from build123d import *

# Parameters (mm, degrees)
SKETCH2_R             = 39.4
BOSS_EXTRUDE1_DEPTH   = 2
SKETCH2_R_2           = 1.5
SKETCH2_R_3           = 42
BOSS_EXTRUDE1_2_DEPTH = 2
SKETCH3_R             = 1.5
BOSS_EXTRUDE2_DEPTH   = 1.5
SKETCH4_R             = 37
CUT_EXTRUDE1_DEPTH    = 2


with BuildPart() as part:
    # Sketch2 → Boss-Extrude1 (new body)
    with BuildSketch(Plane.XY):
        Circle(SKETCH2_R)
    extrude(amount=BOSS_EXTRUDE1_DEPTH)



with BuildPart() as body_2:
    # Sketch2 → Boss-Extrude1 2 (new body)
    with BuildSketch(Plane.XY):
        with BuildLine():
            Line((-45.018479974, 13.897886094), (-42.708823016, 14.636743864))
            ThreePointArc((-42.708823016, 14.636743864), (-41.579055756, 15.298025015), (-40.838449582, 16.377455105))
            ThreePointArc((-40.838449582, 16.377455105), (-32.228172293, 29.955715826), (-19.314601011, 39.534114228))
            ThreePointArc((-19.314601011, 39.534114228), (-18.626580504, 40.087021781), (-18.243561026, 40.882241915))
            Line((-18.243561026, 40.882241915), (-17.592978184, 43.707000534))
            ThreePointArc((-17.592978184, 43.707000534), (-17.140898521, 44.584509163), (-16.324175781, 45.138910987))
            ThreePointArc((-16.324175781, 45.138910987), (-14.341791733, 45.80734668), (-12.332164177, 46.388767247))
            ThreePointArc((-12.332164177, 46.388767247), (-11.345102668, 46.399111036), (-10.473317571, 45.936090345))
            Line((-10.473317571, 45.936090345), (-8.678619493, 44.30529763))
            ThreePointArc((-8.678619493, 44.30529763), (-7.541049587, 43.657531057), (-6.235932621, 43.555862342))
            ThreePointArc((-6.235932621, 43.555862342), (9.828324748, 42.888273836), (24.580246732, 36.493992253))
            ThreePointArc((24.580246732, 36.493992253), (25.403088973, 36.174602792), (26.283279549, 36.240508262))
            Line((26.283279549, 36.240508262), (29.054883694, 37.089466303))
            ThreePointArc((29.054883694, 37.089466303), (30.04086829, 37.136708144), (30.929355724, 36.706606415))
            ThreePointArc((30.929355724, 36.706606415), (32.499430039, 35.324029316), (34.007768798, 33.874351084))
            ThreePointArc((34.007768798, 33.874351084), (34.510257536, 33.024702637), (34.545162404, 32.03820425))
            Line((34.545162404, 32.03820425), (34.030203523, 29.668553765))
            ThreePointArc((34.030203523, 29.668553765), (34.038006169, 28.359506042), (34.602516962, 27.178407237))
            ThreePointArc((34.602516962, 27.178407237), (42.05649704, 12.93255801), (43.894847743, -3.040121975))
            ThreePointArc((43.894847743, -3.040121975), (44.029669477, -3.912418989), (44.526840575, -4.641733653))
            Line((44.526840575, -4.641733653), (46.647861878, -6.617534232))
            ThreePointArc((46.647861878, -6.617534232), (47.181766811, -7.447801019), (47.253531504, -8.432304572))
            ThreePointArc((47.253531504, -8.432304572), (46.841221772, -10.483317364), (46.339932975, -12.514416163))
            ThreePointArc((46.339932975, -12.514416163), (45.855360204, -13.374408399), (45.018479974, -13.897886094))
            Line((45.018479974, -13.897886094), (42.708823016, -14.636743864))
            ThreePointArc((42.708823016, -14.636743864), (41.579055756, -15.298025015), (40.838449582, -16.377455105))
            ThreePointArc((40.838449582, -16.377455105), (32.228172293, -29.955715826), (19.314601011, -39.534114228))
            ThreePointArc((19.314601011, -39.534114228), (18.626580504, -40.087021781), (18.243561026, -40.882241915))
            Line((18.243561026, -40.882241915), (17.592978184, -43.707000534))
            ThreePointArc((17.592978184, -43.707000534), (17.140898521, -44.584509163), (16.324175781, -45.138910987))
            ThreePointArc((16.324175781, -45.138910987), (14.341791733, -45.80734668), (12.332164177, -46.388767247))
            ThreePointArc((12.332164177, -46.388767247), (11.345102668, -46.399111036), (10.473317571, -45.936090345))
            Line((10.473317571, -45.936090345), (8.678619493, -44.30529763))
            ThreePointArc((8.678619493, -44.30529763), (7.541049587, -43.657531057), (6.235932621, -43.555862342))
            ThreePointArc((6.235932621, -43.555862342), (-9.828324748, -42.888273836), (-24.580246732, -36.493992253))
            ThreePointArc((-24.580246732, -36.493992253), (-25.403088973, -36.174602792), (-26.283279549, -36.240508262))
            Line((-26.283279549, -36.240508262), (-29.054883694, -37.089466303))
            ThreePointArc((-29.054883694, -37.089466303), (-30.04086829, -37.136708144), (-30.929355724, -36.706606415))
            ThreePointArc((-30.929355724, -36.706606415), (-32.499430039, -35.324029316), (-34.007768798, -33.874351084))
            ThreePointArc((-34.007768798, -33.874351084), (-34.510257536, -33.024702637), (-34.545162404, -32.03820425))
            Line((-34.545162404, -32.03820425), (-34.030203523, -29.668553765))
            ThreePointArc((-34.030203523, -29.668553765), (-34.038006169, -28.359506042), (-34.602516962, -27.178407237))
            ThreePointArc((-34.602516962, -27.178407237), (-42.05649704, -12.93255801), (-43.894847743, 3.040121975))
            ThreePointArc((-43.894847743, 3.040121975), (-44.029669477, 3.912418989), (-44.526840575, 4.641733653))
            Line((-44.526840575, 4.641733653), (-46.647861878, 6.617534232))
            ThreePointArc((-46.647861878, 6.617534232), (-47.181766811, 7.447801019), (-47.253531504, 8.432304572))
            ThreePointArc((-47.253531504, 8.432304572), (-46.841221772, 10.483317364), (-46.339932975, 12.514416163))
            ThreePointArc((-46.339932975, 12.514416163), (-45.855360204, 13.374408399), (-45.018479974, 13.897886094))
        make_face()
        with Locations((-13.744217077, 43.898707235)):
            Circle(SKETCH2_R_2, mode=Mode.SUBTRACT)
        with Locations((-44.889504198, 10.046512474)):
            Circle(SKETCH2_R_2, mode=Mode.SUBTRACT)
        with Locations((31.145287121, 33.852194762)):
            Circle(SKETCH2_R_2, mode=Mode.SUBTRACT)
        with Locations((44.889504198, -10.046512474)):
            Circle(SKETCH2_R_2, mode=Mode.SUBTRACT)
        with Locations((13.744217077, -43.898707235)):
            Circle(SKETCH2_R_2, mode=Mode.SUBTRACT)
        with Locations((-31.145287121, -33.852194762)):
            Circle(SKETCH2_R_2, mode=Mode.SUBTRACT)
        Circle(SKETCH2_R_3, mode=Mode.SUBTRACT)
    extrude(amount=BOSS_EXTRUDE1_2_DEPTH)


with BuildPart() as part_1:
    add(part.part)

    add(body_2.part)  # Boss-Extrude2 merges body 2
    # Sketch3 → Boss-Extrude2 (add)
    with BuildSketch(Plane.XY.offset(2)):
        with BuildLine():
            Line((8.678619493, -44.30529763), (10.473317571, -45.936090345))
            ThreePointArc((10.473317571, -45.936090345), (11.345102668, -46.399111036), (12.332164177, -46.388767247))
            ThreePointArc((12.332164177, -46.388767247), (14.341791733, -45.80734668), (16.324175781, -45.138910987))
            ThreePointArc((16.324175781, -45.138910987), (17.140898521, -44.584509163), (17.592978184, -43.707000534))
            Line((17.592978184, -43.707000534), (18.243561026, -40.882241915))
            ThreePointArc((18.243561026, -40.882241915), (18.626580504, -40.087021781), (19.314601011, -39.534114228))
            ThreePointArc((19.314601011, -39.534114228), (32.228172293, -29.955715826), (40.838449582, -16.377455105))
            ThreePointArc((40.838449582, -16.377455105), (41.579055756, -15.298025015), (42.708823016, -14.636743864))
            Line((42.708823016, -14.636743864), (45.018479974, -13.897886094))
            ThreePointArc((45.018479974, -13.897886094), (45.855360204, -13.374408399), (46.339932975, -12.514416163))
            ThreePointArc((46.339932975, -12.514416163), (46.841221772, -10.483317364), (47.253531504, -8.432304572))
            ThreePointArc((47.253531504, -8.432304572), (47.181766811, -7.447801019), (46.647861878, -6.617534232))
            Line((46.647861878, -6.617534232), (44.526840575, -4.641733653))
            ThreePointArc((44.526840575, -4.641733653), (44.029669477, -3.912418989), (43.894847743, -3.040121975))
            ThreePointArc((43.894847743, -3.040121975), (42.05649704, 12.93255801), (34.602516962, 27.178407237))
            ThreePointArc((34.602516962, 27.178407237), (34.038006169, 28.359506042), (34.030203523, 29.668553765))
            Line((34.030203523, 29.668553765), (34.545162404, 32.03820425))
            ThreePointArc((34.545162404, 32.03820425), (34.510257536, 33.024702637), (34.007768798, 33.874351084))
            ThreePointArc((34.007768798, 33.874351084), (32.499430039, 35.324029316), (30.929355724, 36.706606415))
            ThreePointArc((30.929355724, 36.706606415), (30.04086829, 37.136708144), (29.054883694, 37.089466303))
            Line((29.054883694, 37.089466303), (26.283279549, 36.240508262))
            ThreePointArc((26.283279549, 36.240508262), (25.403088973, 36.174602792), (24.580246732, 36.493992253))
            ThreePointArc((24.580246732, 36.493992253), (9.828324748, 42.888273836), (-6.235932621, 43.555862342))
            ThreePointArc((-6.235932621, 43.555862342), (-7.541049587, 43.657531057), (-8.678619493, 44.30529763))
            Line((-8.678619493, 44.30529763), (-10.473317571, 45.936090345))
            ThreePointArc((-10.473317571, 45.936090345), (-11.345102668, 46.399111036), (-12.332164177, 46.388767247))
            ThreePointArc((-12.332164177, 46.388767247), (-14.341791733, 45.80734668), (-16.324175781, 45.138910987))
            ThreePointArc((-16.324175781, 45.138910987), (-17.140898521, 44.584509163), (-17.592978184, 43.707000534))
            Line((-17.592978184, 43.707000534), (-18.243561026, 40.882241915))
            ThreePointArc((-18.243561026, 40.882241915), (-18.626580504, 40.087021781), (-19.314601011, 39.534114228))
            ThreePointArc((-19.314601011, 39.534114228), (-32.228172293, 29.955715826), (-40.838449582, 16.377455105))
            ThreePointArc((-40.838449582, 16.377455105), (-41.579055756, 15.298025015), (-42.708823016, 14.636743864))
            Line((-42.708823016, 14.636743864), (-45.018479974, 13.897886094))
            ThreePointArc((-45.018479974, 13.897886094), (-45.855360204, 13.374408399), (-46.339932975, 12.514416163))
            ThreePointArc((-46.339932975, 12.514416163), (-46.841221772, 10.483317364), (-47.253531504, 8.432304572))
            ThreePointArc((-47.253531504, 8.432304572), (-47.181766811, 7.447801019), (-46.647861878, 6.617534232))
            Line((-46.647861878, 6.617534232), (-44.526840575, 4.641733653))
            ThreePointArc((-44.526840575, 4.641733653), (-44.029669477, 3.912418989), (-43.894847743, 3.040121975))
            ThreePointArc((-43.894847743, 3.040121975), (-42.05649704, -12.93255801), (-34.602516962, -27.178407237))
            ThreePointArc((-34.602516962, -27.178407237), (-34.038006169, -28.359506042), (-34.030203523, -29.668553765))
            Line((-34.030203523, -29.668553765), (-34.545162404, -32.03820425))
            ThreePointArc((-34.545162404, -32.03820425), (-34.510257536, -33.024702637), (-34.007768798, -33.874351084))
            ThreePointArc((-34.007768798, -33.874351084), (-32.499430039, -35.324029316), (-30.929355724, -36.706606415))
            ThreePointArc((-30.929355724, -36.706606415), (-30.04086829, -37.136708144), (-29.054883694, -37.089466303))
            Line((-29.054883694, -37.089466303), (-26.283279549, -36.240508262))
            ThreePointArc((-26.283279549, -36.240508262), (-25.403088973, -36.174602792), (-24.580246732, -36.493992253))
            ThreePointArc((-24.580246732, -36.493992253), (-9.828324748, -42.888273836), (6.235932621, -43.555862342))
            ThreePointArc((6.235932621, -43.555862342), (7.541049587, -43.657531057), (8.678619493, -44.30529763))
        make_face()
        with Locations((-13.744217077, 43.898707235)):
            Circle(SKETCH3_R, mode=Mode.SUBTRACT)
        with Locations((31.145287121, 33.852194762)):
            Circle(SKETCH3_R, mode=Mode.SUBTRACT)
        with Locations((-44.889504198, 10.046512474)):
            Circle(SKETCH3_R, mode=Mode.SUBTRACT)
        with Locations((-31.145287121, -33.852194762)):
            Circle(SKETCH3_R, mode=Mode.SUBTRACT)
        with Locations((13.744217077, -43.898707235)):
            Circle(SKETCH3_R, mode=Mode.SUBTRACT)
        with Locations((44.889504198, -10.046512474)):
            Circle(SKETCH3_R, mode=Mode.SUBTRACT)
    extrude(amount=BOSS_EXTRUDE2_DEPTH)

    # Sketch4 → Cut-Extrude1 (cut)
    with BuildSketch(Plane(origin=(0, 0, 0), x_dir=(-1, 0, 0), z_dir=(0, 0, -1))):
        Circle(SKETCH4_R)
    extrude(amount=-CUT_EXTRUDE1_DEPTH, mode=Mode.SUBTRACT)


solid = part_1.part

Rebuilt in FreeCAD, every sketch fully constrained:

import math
import FreeCAD as App
import Part
import Sketcher

V = App.Vector
Q = App.Units.Quantity

doc = App.newDocument("Part")
body = doc.addObject("PartDesign::Body", "Body")

# Sketch on XY plane
sketch1 = body.newObject("Sketcher::SketchObject", "Sketch")
sketch1.AttachmentSupport = (doc.getObject("XY_Plane"), [""])
sketch1.MapMode = "FlatFace"
sketch1.addGeometry(Part.Circle(V(0, 0, 0), V(0, 0, 1), 39), False)
sketch1.addConstraint([
    Sketcher.Constraint("Coincident", 0, 3, -1, 1),
    Sketcher.Constraint("Diameter", 0, Q("78.8 mm")),
])
pad1 = body.newObject("PartDesign::Pad", "Pad")
pad1.Profile = sketch1
pad1.Length = 2
body2 = doc.addObject("PartDesign::Body", "Body001")

# Sketch on XY plane
sketch2 = body2.newObject("Sketcher::SketchObject", "Sketch001")
sketch2.AttachmentSupport = (doc.getObject("XY_Plane001"), [""])
sketch2.MapMode = "FlatFace"
sketch2.addGeometry([
    Part.LineSegment(V(-42.7, 14.6, 0), V(-45, 13.9, 0)),  # 0
    Part.ArcOfCircle(Part.Circle(V(-44.4, 12, 0), V(0, 0, 1), 2), math.radians(108), math.radians(165)),  # 1
    Part.ArcOfCircle(Part.Circle(V(0, 0, 0), V(0, 0, 1), 48), math.radians(164.89), math.radians(169.88)),  # 2
    Part.ArcOfCircle(Part.Circle(V(-45.3, 8.1, 0), V(0, 0, 1), 2), math.radians(170), math.radians(227)),  # 3
    Part.LineSegment(V(-46.6, 6.6, 0), V(-44.5, 4.6, 0)),  # 4
    Part.ArcOfCircle(Part.Circle(V(-45.9, 3.2, 0), V(0, 0, 1), 2), math.radians(-4), math.radians(47)),  # 5
    Part.ArcOfCircle(Part.Circle(V(0, 0, 0), V(0, 0, 1), 44), math.radians(176), math.radians(218)),  # 6
    Part.ArcOfCircle(Part.Circle(V(-37, -29, 0), V(0, 0, 1), 3), math.radians(-12), math.radians(38)),  # 7
    Part.LineSegment(V(-34, -29.7, 0), V(-34.5, -32, 0)),  # 8
    Part.ArcOfCircle(Part.Circle(V(-32.6, -32.5, 0), V(0, 0, 1), 2), math.radians(168), math.radians(225)),  # 9
    Part.ArcOfCircle(Part.Circle(V(0, 0, 0), V(0, 0, 1), 48), math.radians(-135.11), math.radians(-130.12)),  # 10
    Part.ArcOfCircle(Part.Circle(V(-29.6, -35.2, 0), V(0, 0, 1), 2), math.radians(-130), math.radians(-73)),  # 11
    Part.LineSegment(V(-29.1, -37.1, 0), V(-26.3, -36.2, 0)),  # 12
    Part.ArcOfCircle(Part.Circle(V(-25.7, -38.2, 0), V(0, 0, 1), 2), math.radians(56), math.radians(107)),  # 13
    Part.ArcOfCircle(Part.Circle(V(0, 0, 0), V(0, 0, 1), 44), math.radians(-124), math.radians(-82)),  # 14
    Part.ArcOfCircle(Part.Circle(V(6.7, -46.5, 0), V(0, 0, 1), 3), math.radians(48), math.radians(98)),  # 15
    Part.LineSegment(V(8.7, -44.3, 0), V(10.5, -45.9, 0)),  # 16
    Part.ArcOfCircle(Part.Circle(V(11.8, -44.5, 0), V(0, 0, 1), 2), math.radians(-132), math.radians(-75)),  # 17
    Part.ArcOfCircle(Part.Circle(V(0, 0, 0), V(0, 0, 1), 48), math.radians(-75.11), math.radians(-70.12)),  # 18
    Part.ArcOfCircle(Part.Circle(V(15.6, -43.3, 0), V(0, 0, 1), 2), math.radians(-70), math.radians(-13)),  # 19
    Part.LineSegment(V(17.6, -43.7, 0), V(18.2, -40.9, 0)),  # 20
    Part.ArcOfCircle(Part.Circle(V(20.2, -41.3, 0), V(0, 0, 1), 2), math.radians(116), math.radians(167)),  # 21
    Part.ArcOfCircle(Part.Circle(V(0, 0, 0), V(0, 0, 1), 44), math.radians(-64), math.radians(-22)),  # 22
    Part.ArcOfCircle(Part.Circle(V(43.6, -17.5, 0), V(0, 0, 1), 3), math.radians(108), math.radians(158)),  # 23
    Part.LineSegment(V(42.7, -14.6, 0), V(45, -13.9, 0)),  # 24
    Part.ArcOfCircle(Part.Circle(V(44.4, -12, 0), V(0, 0, 1), 2), math.radians(-72), math.radians(-15)),  # 25
    Part.ArcOfCircle(Part.Circle(V(0, 0, 0), V(0, 0, 1), 48), math.radians(-15.11), math.radians(-10.12)),  # 26
    Part.ArcOfCircle(Part.Circle(V(45.3, -8.1, 0), V(0, 0, 1), 2), math.radians(-10), math.radians(47)),  # 27
    Part.LineSegment(V(46.6, -6.6, 0), V(44.5, -4.6, 0)),  # 28
    Part.ArcOfCircle(Part.Circle(V(45.9, -3.2, 0), V(0, 0, 1), 2), math.radians(176), math.radians(227)),  # 29
    Part.ArcOfCircle(Part.Circle(V(0, 0, 0), V(0, 0, 1), 44), math.radians(-4), math.radians(38)),  # 30
    Part.ArcOfCircle(Part.Circle(V(37, 29, 0), V(0, 0, 1), 3), math.radians(168), math.radians(218)),  # 31
    Part.LineSegment(V(34, 29.7, 0), V(34.5, 32, 0)),  # 32
    Part.ArcOfCircle(Part.Circle(V(32.6, 32.5, 0), V(0, 0, 1), 2), math.radians(-12), math.radians(45)),  # 33
    Part.ArcOfCircle(Part.Circle(V(0, 0, 0), V(0, 0, 1), 48), math.radians(44.89), math.radians(49.88)),  # 34
    Part.ArcOfCircle(Part.Circle(V(29.6, 35.2, 0), V(0, 0, 1), 2), math.radians(50), math.radians(107)),  # 35
    Part.LineSegment(V(29.1, 37.1, 0), V(26.3, 36.2, 0)),  # 36
    Part.ArcOfCircle(Part.Circle(V(25.7, 38.2, 0), V(0, 0, 1), 2), math.radians(-124), math.radians(-73)),  # 37
    Part.ArcOfCircle(Part.Circle(V(0, 0, 0), V(0, 0, 1), 44), math.radians(56), math.radians(98)),  # 38
    Part.ArcOfCircle(Part.Circle(V(-6.7, 46.5, 0), V(0, 0, 1), 3), math.radians(-132), math.radians(-82)),  # 39
    Part.LineSegment(V(-8.7, 44.3, 0), V(-10.5, 45.9, 0)),  # 40
    Part.ArcOfCircle(Part.Circle(V(-11.8, 44.5, 0), V(0, 0, 1), 2), math.radians(48), math.radians(105)),  # 41
    Part.ArcOfCircle(Part.Circle(V(0, 0, 0), V(0, 0, 1), 48), math.radians(104.89), math.radians(109.88)),  # 42
    Part.ArcOfCircle(Part.Circle(V(-15.6, 43.3, 0), V(0, 0, 1), 2), math.radians(110), math.radians(167)),  # 43
    Part.LineSegment(V(-17.6, 43.7, 0), V(-18.2, 40.9, 0)),  # 44
    Part.ArcOfCircle(Part.Circle(V(-20.2, 41.3, 0), V(0, 0, 1), 2), math.radians(-64), math.radians(-13)),  # 45
    Part.ArcOfCircle(Part.Circle(V(0, 0, 0), V(0, 0, 1), 44), math.radians(116), math.radians(158)),  # 46
    Part.ArcOfCircle(Part.Circle(V(-43.6, 17.5, 0), V(0, 0, 1), 3), math.radians(-72), math.radians(-22)),  # 47
    Part.Circle(V(13.7, -43.9, 0), V(0, 0, 1), 1.5),  # 48
    Part.Circle(V(44.9, -10, 0), V(0, 0, 1), 1.5),  # 49
    Part.Circle(V(-31.1, -33.9, 0), V(0, 0, 1), 1.5),  # 50
    Part.Circle(V(0, 0, 0), V(0, 0, 1), 42),  # 51
    Part.Circle(V(31.1, 33.9, 0), V(0, 0, 1), 1.5),  # 52
    Part.Circle(V(-44.9, 10, 0), V(0, 0, 1), 1.5),  # 53
    Part.Circle(V(-13.7, 43.9, 0), V(0, 0, 1), 1.5),  # 54
], False)
sketch2.addConstraint([
    Sketcher.Constraint("Tangent", 0, 2, 1, 1),
    Sketcher.Constraint("Tangent", 1, 2, 2, 1),
    Sketcher.Constraint("Tangent", 2, 2, 3, 1),
    Sketcher.Constraint("Tangent", 3, 2, 4, 1),
    Sketcher.Constraint("Tangent", 4, 2, 5, 2),
    Sketcher.Constraint("Tangent", 5, 1, 6, 1),
    Sketcher.Constraint("Tangent", 6, 2, 7, 2),
    Sketcher.Constraint("Tangent", 7, 1, 8, 1),
    Sketcher.Constraint("Tangent", 8, 2, 9, 1),
    Sketcher.Constraint("Tangent", 9, 2, 10, 1),
    Sketcher.Constraint("Tangent", 10, 2, 11, 1),
    Sketcher.Constraint("Tangent", 11, 2, 12, 1),
    Sketcher.Constraint("Tangent", 12, 2, 13, 2),
    Sketcher.Constraint("Tangent", 13, 1, 14, 1),
    Sketcher.Constraint("Tangent", 14, 2, 15, 2),
    Sketcher.Constraint("Tangent", 15, 1, 16, 1),
    Sketcher.Constraint("Tangent", 16, 2, 17, 1),
    Sketcher.Constraint("Tangent", 17, 2, 18, 1),
    Sketcher.Constraint("Tangent", 18, 2, 19, 1),
    Sketcher.Constraint("Tangent", 19, 2, 20, 1),
    Sketcher.Constraint("Tangent", 20, 2, 21, 2),
    Sketcher.Constraint("Tangent", 21, 1, 22, 1),
    Sketcher.Constraint("Tangent", 22, 2, 23, 2),
    Sketcher.Constraint("Tangent", 23, 1, 24, 1),
    Sketcher.Constraint("Tangent", 24, 2, 25, 1),
    Sketcher.Constraint("Tangent", 25, 2, 26, 1),
    Sketcher.Constraint("Tangent", 26, 2, 27, 1),
    Sketcher.Constraint("Tangent", 27, 2, 28, 1),
    Sketcher.Constraint("Tangent", 28, 2, 29, 2),
    Sketcher.Constraint("Tangent", 29, 1, 30, 1),
    Sketcher.Constraint("Tangent", 30, 2, 31, 2),
    Sketcher.Constraint("Tangent", 31, 1, 32, 1),
    Sketcher.Constraint("Tangent", 32, 2, 33, 1),
    Sketcher.Constraint("Tangent", 33, 2, 34, 1),
    Sketcher.Constraint("Tangent", 34, 2, 35, 1),
    Sketcher.Constraint("Tangent", 35, 2, 36, 1),
    Sketcher.Constraint("Tangent", 36, 2, 37, 2),
    Sketcher.Constraint("Tangent", 37, 1, 38, 1),
    Sketcher.Constraint("Tangent", 38, 2, 39, 2),
    Sketcher.Constraint("Tangent", 39, 1, 40, 1),
    Sketcher.Constraint("Tangent", 40, 2, 41, 1),
    Sketcher.Constraint("Tangent", 41, 2, 42, 1),
    Sketcher.Constraint("Tangent", 42, 2, 43, 1),
    Sketcher.Constraint("Tangent", 43, 2, 44, 1),
    Sketcher.Constraint("Tangent", 44, 2, 45, 2),
    Sketcher.Constraint("Tangent", 45, 1, 46, 1),
    Sketcher.Constraint("Tangent", 46, 2, 47, 2),
    Sketcher.Constraint("Tangent", 47, 1, 0, 1),
    Sketcher.Constraint("Coincident", 2, 3, -1, 1),
    Sketcher.Constraint("Coincident", 6, 3, -1, 1),
    Sketcher.Constraint("Coincident", 10, 3, -1, 1),
    Sketcher.Constraint("Coincident", 14, 3, -1, 1),
    Sketcher.Constraint("Coincident", 18, 3, -1, 1),
    Sketcher.Constraint("Coincident", 22, 3, -1, 1),
    Sketcher.Constraint("Coincident", 26, 3, -1, 1),
    Sketcher.Constraint("Coincident", 30, 3, -1, 1),
    Sketcher.Constraint("Coincident", 34, 3, -1, 1),
    Sketcher.Constraint("Coincident", 38, 3, -1, 1),
    Sketcher.Constraint("Coincident", 42, 3, -1, 1),
    Sketcher.Constraint("Coincident", 46, 3, -1, 1),
    Sketcher.Constraint("Coincident", 51, 3, -1, 1),
    Sketcher.Constraint("Equal", 1, 3),
    Sketcher.Constraint("Equal", 3, 5),
    Sketcher.Constraint("Equal", 5, 9),
    Sketcher.Constraint("Equal", 2, 10),
    Sketcher.Constraint("Equal", 9, 11),
    Sketcher.Constraint("Equal", 11, 13),
    Sketcher.Constraint("Equal", 6, 14),
    Sketcher.Constraint("Equal", 7, 15),
    Sketcher.Constraint("Equal", 13, 17),
    Sketcher.Constraint("Equal", 10, 18),
    Sketcher.Constraint("Equal", 17, 19),
    Sketcher.Constraint("Equal", 19, 21),
    Sketcher.Constraint("Equal", 14, 22),
    Sketcher.Constraint("Equal", 15, 23),
    Sketcher.Constraint("Equal", 21, 25),
    Sketcher.Constraint("Equal", 18, 26),
    Sketcher.Constraint("Equal", 25, 27),
    Sketcher.Constraint("Equal", 27, 29),
    Sketcher.Constraint("Equal", 22, 30),
    Sketcher.Constraint("Equal", 23, 31),
    Sketcher.Constraint("Equal", 29, 33),
    Sketcher.Constraint("Equal", 26, 34),
    Sketcher.Constraint("Equal", 33, 35),
    Sketcher.Constraint("Equal", 35, 37),
    Sketcher.Constraint("Equal", 30, 38),
    Sketcher.Constraint("Equal", 31, 39),
    Sketcher.Constraint("Equal", 37, 41),
    Sketcher.Constraint("Equal", 34, 42),
    Sketcher.Constraint("Equal", 41, 43),
    Sketcher.Constraint("Equal", 43, 45),
    Sketcher.Constraint("Equal", 38, 46),
    Sketcher.Constraint("Equal", 39, 47),
    Sketcher.Constraint("Equal", 48, 49),
    Sketcher.Constraint("Equal", 49, 50),
    Sketcher.Constraint("Equal", 50, 52),
    Sketcher.Constraint("Equal", 52, 53),
    Sketcher.Constraint("Equal", 53, 54),
    Sketcher.Constraint("Symmetric", 50, 3, 52, 3, -1, 1),
    Sketcher.Constraint("Symmetric", 49, 3, 53, 3, -1, 1),
    Sketcher.Constraint("Symmetric", 48, 3, 54, 3, -1, 1),
    Sketcher.Constraint("Symmetric", 0, 2, 24, 2, -1, 1),
    Sketcher.Constraint("Symmetric", 3, 2, 27, 2, -1, 1),
    Sketcher.Constraint("Symmetric", 7, 1, 31, 1, -1, 1),
    Sketcher.Constraint("Symmetric", 11, 2, 35, 2, -1, 1),
    Sketcher.Constraint("Symmetric", 15, 1, 39, 1, -1, 1),
    Sketcher.Constraint("Symmetric", 19, 2, 43, 2, -1, 1),
    Sketcher.Constraint("Equal", 0, 8),
    Sketcher.Constraint("Equal", 4, 12),
    Sketcher.Constraint("Equal", 8, 16),
    Sketcher.Constraint("Equal", 12, 20),
    Sketcher.Constraint("Diameter", 48, Q("3 mm")),
    Sketcher.Constraint("Diameter", 51, Q("84 mm")),
    Sketcher.Constraint("Radius", 1, Q("2 mm")),
    Sketcher.Constraint("Radius", 2, Q("48 mm")),
    Sketcher.Constraint("Radius", 6, Q("44 mm")),
    Sketcher.Constraint("Radius", 7, Q("3 mm")),
    Sketcher.Constraint("DistanceX", -1, 1, 19, 3, Q("15.644002 mm")),
    Sketcher.Constraint("DistanceY", 19, 2, -1, 1, Q("43.707001 mm")),
    Sketcher.Constraint("DistanceY", 17, 3, -1, 1, Q("44.455902 mm")),
    Sketcher.Constraint("DistanceY", 23, 3, -1, 1, Q("17.4941 mm")),
    Sketcher.Constraint("Distance", 0, Q("2.424959 mm")),
    Sketcher.Constraint("DistanceY", -1, 1, 3, 3, Q("8.080959 mm")),
    Sketcher.Constraint("DistanceX", 7, 3, -1, 1, Q("36.961779 mm")),
    Sketcher.Constraint("DistanceX", 13, 3, -1, 1, Q("25.697531 mm")),
    Sketcher.Constraint("DistanceX", -1, 1, 48, 3, Q("13.744217 mm")),
    Sketcher.Constraint("DistanceY", 48, 3, -1, 1, Q("43.898707 mm")),
    Sketcher.Constraint("DistanceX", -1, 1, 49, 3, Q("44.889504 mm")),
    Sketcher.Constraint("DistanceY", 49, 3, -1, 1, Q("10.046512 mm")),
    Sketcher.Constraint("DistanceX", 50, 3, -1, 1, Q("31.145287 mm")),
    Sketcher.Constraint("DistanceY", 50, 3, -1, 1, Q("33.852195 mm")),
])
pad2 = body2.newObject("PartDesign::Pad", "Pad001")
pad2.Profile = sketch2
pad2.Length = 2
body.AllowCompound = True
doc.recompute()

boolean = body.newObject("PartDesign::Boolean", "Boolean")
boolean.Type = "Fuse"
boolean.addObjects([body2])

# Sketch on XY plane
sketch3 = body.newObject("Sketcher::SketchObject", "Sketch002")
sketch3.AttachmentSupport = (doc.getObject("XY_Plane"), [""])
sketch3.MapMode = "FlatFace"
sketch3.AttachmentOffset = App.Placement(V(0, 0, 2), App.Rotation())
sketch3.addGeometry([
    Part.LineSegment(V(8.7, -44.3, 0), V(10.5, -45.9, 0)),  # 0
    Part.ArcOfCircle(Part.Circle(V(11.8, -44.5, 0), V(0, 0, 1), 2), math.radians(-132), math.radians(-75)),  # 1
    Part.ArcOfCircle(Part.Circle(V(0, 0, 0), V(0, 0, 1), 48), math.radians(-75.11), math.radians(-70.12)),  # 2
    Part.ArcOfCircle(Part.Circle(V(15.6, -43.3, 0), V(0, 0, 1), 2), math.radians(-70), math.radians(-13)),  # 3
    Part.LineSegment(V(17.6, -43.7, 0), V(18.2, -40.9, 0)),  # 4
    Part.ArcOfCircle(Part.Circle(V(20.2, -41.3, 0), V(0, 0, 1), 2), math.radians(116), math.radians(167)),  # 5
    Part.ArcOfCircle(Part.Circle(V(0, 0, 0), V(0, 0, 1), 44), math.radians(-64), math.radians(-22)),  # 6
    Part.ArcOfCircle(Part.Circle(V(43.6, -17.5, 0), V(0, 0, 1), 3), math.radians(108), math.radians(158)),  # 7
    Part.LineSegment(V(42.7, -14.6, 0), V(45, -13.9, 0)),  # 8
    Part.ArcOfCircle(Part.Circle(V(44.4, -12, 0), V(0, 0, 1), 2), math.radians(-72), math.radians(-15)),  # 9
    Part.ArcOfCircle(Part.Circle(V(0, 0, 0), V(0, 0, 1), 48), math.radians(-15.11), math.radians(-10.12)),  # 10
    Part.ArcOfCircle(Part.Circle(V(45.3, -8.1, 0), V(0, 0, 1), 2), math.radians(-10), math.radians(47)),  # 11
    Part.LineSegment(V(46.6, -6.6, 0), V(44.5, -4.6, 0)),  # 12
    Part.ArcOfCircle(Part.Circle(V(45.9, -3.2, 0), V(0, 0, 1), 2), math.radians(176), math.radians(227)),  # 13
    Part.ArcOfCircle(Part.Circle(V(0, 0, 0), V(0, 0, 1), 44), math.radians(-4), math.radians(38)),  # 14
    Part.ArcOfCircle(Part.Circle(V(37, 29, 0), V(0, 0, 1), 3), math.radians(168), math.radians(218)),  # 15
    Part.LineSegment(V(34, 29.7, 0), V(34.5, 32, 0)),  # 16
    Part.ArcOfCircle(Part.Circle(V(32.6, 32.5, 0), V(0, 0, 1), 2), math.radians(-12), math.radians(45)),  # 17
    Part.ArcOfCircle(Part.Circle(V(0, 0, 0), V(0, 0, 1), 48), math.radians(44.89), math.radians(49.88)),  # 18
    Part.ArcOfCircle(Part.Circle(V(29.6, 35.2, 0), V(0, 0, 1), 2), math.radians(50), math.radians(107)),  # 19
    Part.LineSegment(V(29.1, 37.1, 0), V(26.3, 36.2, 0)),  # 20
    Part.ArcOfCircle(Part.Circle(V(25.7, 38.2, 0), V(0, 0, 1), 2), math.radians(-124), math.radians(-73)),  # 21
    Part.ArcOfCircle(Part.Circle(V(0, 0, 0), V(0, 0, 1), 44), math.radians(56), math.radians(98)),  # 22
    Part.ArcOfCircle(Part.Circle(V(-6.7, 46.5, 0), V(0, 0, 1), 3), math.radians(-132), math.radians(-82)),  # 23
    Part.LineSegment(V(-8.7, 44.3, 0), V(-10.5, 45.9, 0)),  # 24
    Part.ArcOfCircle(Part.Circle(V(-11.8, 44.5, 0), V(0, 0, 1), 2), math.radians(48), math.radians(105)),  # 25
    Part.ArcOfCircle(Part.Circle(V(0, 0, 0), V(0, 0, 1), 48), math.radians(104.89), math.radians(109.88)),  # 26
    Part.ArcOfCircle(Part.Circle(V(-15.6, 43.3, 0), V(0, 0, 1), 2), math.radians(110), math.radians(167)),  # 27
    Part.LineSegment(V(-17.6, 43.7, 0), V(-18.2, 40.9, 0)),  # 28
    Part.ArcOfCircle(Part.Circle(V(-20.2, 41.3, 0), V(0, 0, 1), 2), math.radians(-64), math.radians(-13)),  # 29
    Part.ArcOfCircle(Part.Circle(V(0, 0, 0), V(0, 0, 1), 44), math.radians(116), math.radians(158)),  # 30
    Part.ArcOfCircle(Part.Circle(V(-43.6, 17.5, 0), V(0, 0, 1), 3), math.radians(-72), math.radians(-22)),  # 31
    Part.LineSegment(V(-42.7, 14.6, 0), V(-45, 13.9, 0)),  # 32
    Part.ArcOfCircle(Part.Circle(V(-44.4, 12, 0), V(0, 0, 1), 2), math.radians(108), math.radians(165)),  # 33
    Part.ArcOfCircle(Part.Circle(V(0, 0, 0), V(0, 0, 1), 48), math.radians(164.89), math.radians(169.88)),  # 34
    Part.ArcOfCircle(Part.Circle(V(-45.3, 8.1, 0), V(0, 0, 1), 2), math.radians(170), math.radians(227)),  # 35
    Part.LineSegment(V(-46.6, 6.6, 0), V(-44.5, 4.6, 0)),  # 36
    Part.ArcOfCircle(Part.Circle(V(-45.9, 3.2, 0), V(0, 0, 1), 2), math.radians(-4), math.radians(47)),  # 37
    Part.ArcOfCircle(Part.Circle(V(0, 0, 0), V(0, 0, 1), 44), math.radians(176), math.radians(218)),  # 38
    Part.ArcOfCircle(Part.Circle(V(-37, -29, 0), V(0, 0, 1), 3), math.radians(-12), math.radians(38)),  # 39
    Part.LineSegment(V(-34, -29.7, 0), V(-34.5, -32, 0)),  # 40
    Part.ArcOfCircle(Part.Circle(V(-32.6, -32.5, 0), V(0, 0, 1), 2), math.radians(168), math.radians(225)),  # 41
    Part.ArcOfCircle(Part.Circle(V(0, 0, 0), V(0, 0, 1), 48), math.radians(-135.11), math.radians(-130.12)),  # 42
    Part.ArcOfCircle(Part.Circle(V(-29.6, -35.2, 0), V(0, 0, 1), 2), math.radians(-130), math.radians(-73)),  # 43
    Part.LineSegment(V(-29.1, -37.1, 0), V(-26.3, -36.2, 0)),  # 44
    Part.ArcOfCircle(Part.Circle(V(-25.7, -38.2, 0), V(0, 0, 1), 2), math.radians(56), math.radians(107)),  # 45
    Part.ArcOfCircle(Part.Circle(V(0, 0, 0), V(0, 0, 1), 44), math.radians(-124), math.radians(-82)),  # 46
    Part.ArcOfCircle(Part.Circle(V(6.7, -46.5, 0), V(0, 0, 1), 3), math.radians(48), math.radians(98)),  # 47
    Part.Circle(V(-31.1, -33.9, 0), V(0, 0, 1), 1.5),  # 48
    Part.Circle(V(13.7, -43.9, 0), V(0, 0, 1), 1.5),  # 49
    Part.Circle(V(44.9, -10, 0), V(0, 0, 1), 1.5),  # 50
    Part.Circle(V(-44.9, 10, 0), V(0, 0, 1), 1.5),  # 51
    Part.Circle(V(-13.7, 43.9, 0), V(0, 0, 1), 1.5),  # 52
    Part.Circle(V(31.1, 33.9, 0), V(0, 0, 1), 1.5),  # 53
], False)
sketch3.addConstraint([
    Sketcher.Constraint("Tangent", 0, 2, 1, 1),
    Sketcher.Constraint("Tangent", 1, 2, 2, 1),
    Sketcher.Constraint("Tangent", 2, 2, 3, 1),
    Sketcher.Constraint("Tangent", 3, 2, 4, 1),
    Sketcher.Constraint("Tangent", 4, 2, 5, 2),
    Sketcher.Constraint("Tangent", 5, 1, 6, 1),
    Sketcher.Constraint("Tangent", 6, 2, 7, 2),
    Sketcher.Constraint("Tangent", 7, 1, 8, 1),
    Sketcher.Constraint("Tangent", 8, 2, 9, 1),
    Sketcher.Constraint("Tangent", 9, 2, 10, 1),
    Sketcher.Constraint("Tangent", 10, 2, 11, 1),
    Sketcher.Constraint("Tangent", 11, 2, 12, 1),
    Sketcher.Constraint("Tangent", 12, 2, 13, 2),
    Sketcher.Constraint("Tangent", 13, 1, 14, 1),
    Sketcher.Constraint("Tangent", 14, 2, 15, 2),
    Sketcher.Constraint("Tangent", 15, 1, 16, 1),
    Sketcher.Constraint("Tangent", 16, 2, 17, 1),
    Sketcher.Constraint("Tangent", 17, 2, 18, 1),
    Sketcher.Constraint("Tangent", 18, 2, 19, 1),
    Sketcher.Constraint("Tangent", 19, 2, 20, 1),
    Sketcher.Constraint("Tangent", 20, 2, 21, 2),
    Sketcher.Constraint("Tangent", 21, 1, 22, 1),
    Sketcher.Constraint("Tangent", 22, 2, 23, 2),
    Sketcher.Constraint("Tangent", 23, 1, 24, 1),
    Sketcher.Constraint("Tangent", 24, 2, 25, 1),
    Sketcher.Constraint("Tangent", 25, 2, 26, 1),
    Sketcher.Constraint("Tangent", 26, 2, 27, 1),
    Sketcher.Constraint("Tangent", 27, 2, 28, 1),
    Sketcher.Constraint("Tangent", 28, 2, 29, 2),
    Sketcher.Constraint("Tangent", 29, 1, 30, 1),
    Sketcher.Constraint("Tangent", 30, 2, 31, 2),
    Sketcher.Constraint("Tangent", 31, 1, 32, 1),
    Sketcher.Constraint("Tangent", 32, 2, 33, 1),
    Sketcher.Constraint("Tangent", 33, 2, 34, 1),
    Sketcher.Constraint("Tangent", 34, 2, 35, 1),
    Sketcher.Constraint("Tangent", 35, 2, 36, 1),
    Sketcher.Constraint("Tangent", 36, 2, 37, 2),
    Sketcher.Constraint("Tangent", 37, 1, 38, 1),
    Sketcher.Constraint("Tangent", 38, 2, 39, 2),
    Sketcher.Constraint("Tangent", 39, 1, 40, 1),
    Sketcher.Constraint("Tangent", 40, 2, 41, 1),
    Sketcher.Constraint("Tangent", 41, 2, 42, 1),
    Sketcher.Constraint("Tangent", 42, 2, 43, 1),
    Sketcher.Constraint("Tangent", 43, 2, 44, 1),
    Sketcher.Constraint("Tangent", 44, 2, 45, 2),
    Sketcher.Constraint("Tangent", 45, 1, 46, 1),
    Sketcher.Constraint("Tangent", 46, 2, 47, 2),
    Sketcher.Constraint("Tangent", 47, 1, 0, 1),
    Sketcher.Constraint("Coincident", 2, 3, -1, 1),
    Sketcher.Constraint("Coincident", 6, 3, -1, 1),
    Sketcher.Constraint("Coincident", 10, 3, -1, 1),
    Sketcher.Constraint("Coincident", 14, 3, -1, 1),
    Sketcher.Constraint("Coincident", 18, 3, -1, 1),
    Sketcher.Constraint("Coincident", 22, 3, -1, 1),
    Sketcher.Constraint("Coincident", 26, 3, -1, 1),
    Sketcher.Constraint("Coincident", 30, 3, -1, 1),
    Sketcher.Constraint("Coincident", 34, 3, -1, 1),
    Sketcher.Constraint("Coincident", 38, 3, -1, 1),
    Sketcher.Constraint("Coincident", 42, 3, -1, 1),
    Sketcher.Constraint("Coincident", 46, 3, -1, 1),
    Sketcher.Constraint("Equal", 1, 3),
    Sketcher.Constraint("Equal", 3, 5),
    Sketcher.Constraint("Equal", 5, 9),
    Sketcher.Constraint("Equal", 2, 10),
    Sketcher.Constraint("Equal", 9, 11),
    Sketcher.Constraint("Equal", 11, 13),
    Sketcher.Constraint("Equal", 6, 14),
    Sketcher.Constraint("Equal", 7, 15),
    Sketcher.Constraint("Equal", 13, 17),
    Sketcher.Constraint("Equal", 10, 18),
    Sketcher.Constraint("Equal", 17, 19),
    Sketcher.Constraint("Equal", 19, 21),
    Sketcher.Constraint("Equal", 14, 22),
    Sketcher.Constraint("Equal", 15, 23),
    Sketcher.Constraint("Equal", 21, 25),
    Sketcher.Constraint("Equal", 18, 26),
    Sketcher.Constraint("Equal", 25, 27),
    Sketcher.Constraint("Equal", 27, 29),
    Sketcher.Constraint("Equal", 22, 30),
    Sketcher.Constraint("Equal", 23, 31),
    Sketcher.Constraint("Equal", 29, 33),
    Sketcher.Constraint("Equal", 26, 34),
    Sketcher.Constraint("Equal", 33, 35),
    Sketcher.Constraint("Equal", 35, 37),
    Sketcher.Constraint("Equal", 30, 38),
    Sketcher.Constraint("Equal", 31, 39),
    Sketcher.Constraint("Equal", 37, 41),
    Sketcher.Constraint("Equal", 34, 42),
    Sketcher.Constraint("Equal", 41, 43),
    Sketcher.Constraint("Equal", 43, 45),
    Sketcher.Constraint("Equal", 38, 46),
    Sketcher.Constraint("Equal", 39, 47),
    Sketcher.Constraint("Equal", 48, 49),
    Sketcher.Constraint("Equal", 49, 50),
    Sketcher.Constraint("Equal", 50, 51),
    Sketcher.Constraint("Equal", 51, 52),
    Sketcher.Constraint("Equal", 52, 53),
    Sketcher.Constraint("Symmetric", 50, 3, 51, 3, -1, 1),
    Sketcher.Constraint("Symmetric", 49, 3, 52, 3, -1, 1),
    Sketcher.Constraint("Symmetric", 48, 3, 53, 3, -1, 1),
    Sketcher.Constraint("Symmetric", 0, 2, 24, 2, -1, 1),
    Sketcher.Constraint("Symmetric", 3, 2, 27, 2, -1, 1),
    Sketcher.Constraint("Symmetric", 7, 1, 31, 1, -1, 1),
    Sketcher.Constraint("Symmetric", 11, 2, 35, 2, -1, 1),
    Sketcher.Constraint("Symmetric", 15, 1, 39, 1, -1, 1),
    Sketcher.Constraint("Symmetric", 19, 2, 43, 2, -1, 1),
    Sketcher.Constraint("Equal", 0, 8),
    Sketcher.Constraint("Equal", 4, 12),
    Sketcher.Constraint("Equal", 8, 16),
    Sketcher.Constraint("Equal", 12, 20),
    Sketcher.Constraint("Diameter", 48, Q("3 mm")),
    Sketcher.Constraint("Radius", 1, Q("2 mm")),
    Sketcher.Constraint("Radius", 2, Q("48 mm")),
    Sketcher.Constraint("Radius", 6, Q("44 mm")),
    Sketcher.Constraint("Radius", 7, Q("3 mm")),
    Sketcher.Constraint("DistanceX", -1, 1, 3, 3, Q("15.644002 mm")),
    Sketcher.Constraint("DistanceY", 3, 2, -1, 1, Q("43.707001 mm")),
    Sketcher.Constraint("DistanceY", 1, 3, -1, 1, Q("44.455902 mm")),
    Sketcher.Constraint("DistanceY", 7, 3, -1, 1, Q("17.4941 mm")),
    Sketcher.Constraint("Distance", 0, Q("2.424959 mm")),
    Sketcher.Constraint("DistanceY", 11, 3, -1, 1, Q("8.080959 mm")),
    Sketcher.Constraint("DistanceX", -1, 1, 15, 3, Q("36.961779 mm")),
    Sketcher.Constraint("DistanceX", -1, 1, 21, 3, Q("25.697531 mm")),
    Sketcher.Constraint("DistanceX", 48, 3, -1, 1, Q("31.145287 mm")),
    Sketcher.Constraint("DistanceY", 48, 3, -1, 1, Q("33.852195 mm")),
    Sketcher.Constraint("DistanceX", -1, 1, 49, 3, Q("13.744217 mm")),
    Sketcher.Constraint("DistanceY", 49, 3, -1, 1, Q("43.898707 mm")),
    Sketcher.Constraint("DistanceX", -1, 1, 50, 3, Q("44.889504 mm")),
    Sketcher.Constraint("DistanceY", 50, 3, -1, 1, Q("10.046512 mm")),
])
pad3 = body.newObject("PartDesign::Pad", "Pad002")
pad3.Profile = sketch3
pad3.Length = 1.5

# Sketch on XY plane
sketch4 = body.newObject("Sketcher::SketchObject", "Sketch003")
sketch4.AttachmentSupport = (doc.getObject("XY_Plane"), [""])
sketch4.MapMode = "FlatFace"
sketch4.addGeometry(Part.Circle(V(0, 0, 0), V(0, 0, 1), 37), False)
sketch4.addConstraint([
    Sketcher.Constraint("Coincident", 0, 3, -1, 1),
    Sketcher.Constraint("Diameter", 0, Q("74 mm")),
])
pocket1 = body.newObject("PartDesign::Pocket", "Pocket")
pocket1.Profile = sketch4
pocket1.Length = 2
pocket1.Reversed = True

doc.recompute()
